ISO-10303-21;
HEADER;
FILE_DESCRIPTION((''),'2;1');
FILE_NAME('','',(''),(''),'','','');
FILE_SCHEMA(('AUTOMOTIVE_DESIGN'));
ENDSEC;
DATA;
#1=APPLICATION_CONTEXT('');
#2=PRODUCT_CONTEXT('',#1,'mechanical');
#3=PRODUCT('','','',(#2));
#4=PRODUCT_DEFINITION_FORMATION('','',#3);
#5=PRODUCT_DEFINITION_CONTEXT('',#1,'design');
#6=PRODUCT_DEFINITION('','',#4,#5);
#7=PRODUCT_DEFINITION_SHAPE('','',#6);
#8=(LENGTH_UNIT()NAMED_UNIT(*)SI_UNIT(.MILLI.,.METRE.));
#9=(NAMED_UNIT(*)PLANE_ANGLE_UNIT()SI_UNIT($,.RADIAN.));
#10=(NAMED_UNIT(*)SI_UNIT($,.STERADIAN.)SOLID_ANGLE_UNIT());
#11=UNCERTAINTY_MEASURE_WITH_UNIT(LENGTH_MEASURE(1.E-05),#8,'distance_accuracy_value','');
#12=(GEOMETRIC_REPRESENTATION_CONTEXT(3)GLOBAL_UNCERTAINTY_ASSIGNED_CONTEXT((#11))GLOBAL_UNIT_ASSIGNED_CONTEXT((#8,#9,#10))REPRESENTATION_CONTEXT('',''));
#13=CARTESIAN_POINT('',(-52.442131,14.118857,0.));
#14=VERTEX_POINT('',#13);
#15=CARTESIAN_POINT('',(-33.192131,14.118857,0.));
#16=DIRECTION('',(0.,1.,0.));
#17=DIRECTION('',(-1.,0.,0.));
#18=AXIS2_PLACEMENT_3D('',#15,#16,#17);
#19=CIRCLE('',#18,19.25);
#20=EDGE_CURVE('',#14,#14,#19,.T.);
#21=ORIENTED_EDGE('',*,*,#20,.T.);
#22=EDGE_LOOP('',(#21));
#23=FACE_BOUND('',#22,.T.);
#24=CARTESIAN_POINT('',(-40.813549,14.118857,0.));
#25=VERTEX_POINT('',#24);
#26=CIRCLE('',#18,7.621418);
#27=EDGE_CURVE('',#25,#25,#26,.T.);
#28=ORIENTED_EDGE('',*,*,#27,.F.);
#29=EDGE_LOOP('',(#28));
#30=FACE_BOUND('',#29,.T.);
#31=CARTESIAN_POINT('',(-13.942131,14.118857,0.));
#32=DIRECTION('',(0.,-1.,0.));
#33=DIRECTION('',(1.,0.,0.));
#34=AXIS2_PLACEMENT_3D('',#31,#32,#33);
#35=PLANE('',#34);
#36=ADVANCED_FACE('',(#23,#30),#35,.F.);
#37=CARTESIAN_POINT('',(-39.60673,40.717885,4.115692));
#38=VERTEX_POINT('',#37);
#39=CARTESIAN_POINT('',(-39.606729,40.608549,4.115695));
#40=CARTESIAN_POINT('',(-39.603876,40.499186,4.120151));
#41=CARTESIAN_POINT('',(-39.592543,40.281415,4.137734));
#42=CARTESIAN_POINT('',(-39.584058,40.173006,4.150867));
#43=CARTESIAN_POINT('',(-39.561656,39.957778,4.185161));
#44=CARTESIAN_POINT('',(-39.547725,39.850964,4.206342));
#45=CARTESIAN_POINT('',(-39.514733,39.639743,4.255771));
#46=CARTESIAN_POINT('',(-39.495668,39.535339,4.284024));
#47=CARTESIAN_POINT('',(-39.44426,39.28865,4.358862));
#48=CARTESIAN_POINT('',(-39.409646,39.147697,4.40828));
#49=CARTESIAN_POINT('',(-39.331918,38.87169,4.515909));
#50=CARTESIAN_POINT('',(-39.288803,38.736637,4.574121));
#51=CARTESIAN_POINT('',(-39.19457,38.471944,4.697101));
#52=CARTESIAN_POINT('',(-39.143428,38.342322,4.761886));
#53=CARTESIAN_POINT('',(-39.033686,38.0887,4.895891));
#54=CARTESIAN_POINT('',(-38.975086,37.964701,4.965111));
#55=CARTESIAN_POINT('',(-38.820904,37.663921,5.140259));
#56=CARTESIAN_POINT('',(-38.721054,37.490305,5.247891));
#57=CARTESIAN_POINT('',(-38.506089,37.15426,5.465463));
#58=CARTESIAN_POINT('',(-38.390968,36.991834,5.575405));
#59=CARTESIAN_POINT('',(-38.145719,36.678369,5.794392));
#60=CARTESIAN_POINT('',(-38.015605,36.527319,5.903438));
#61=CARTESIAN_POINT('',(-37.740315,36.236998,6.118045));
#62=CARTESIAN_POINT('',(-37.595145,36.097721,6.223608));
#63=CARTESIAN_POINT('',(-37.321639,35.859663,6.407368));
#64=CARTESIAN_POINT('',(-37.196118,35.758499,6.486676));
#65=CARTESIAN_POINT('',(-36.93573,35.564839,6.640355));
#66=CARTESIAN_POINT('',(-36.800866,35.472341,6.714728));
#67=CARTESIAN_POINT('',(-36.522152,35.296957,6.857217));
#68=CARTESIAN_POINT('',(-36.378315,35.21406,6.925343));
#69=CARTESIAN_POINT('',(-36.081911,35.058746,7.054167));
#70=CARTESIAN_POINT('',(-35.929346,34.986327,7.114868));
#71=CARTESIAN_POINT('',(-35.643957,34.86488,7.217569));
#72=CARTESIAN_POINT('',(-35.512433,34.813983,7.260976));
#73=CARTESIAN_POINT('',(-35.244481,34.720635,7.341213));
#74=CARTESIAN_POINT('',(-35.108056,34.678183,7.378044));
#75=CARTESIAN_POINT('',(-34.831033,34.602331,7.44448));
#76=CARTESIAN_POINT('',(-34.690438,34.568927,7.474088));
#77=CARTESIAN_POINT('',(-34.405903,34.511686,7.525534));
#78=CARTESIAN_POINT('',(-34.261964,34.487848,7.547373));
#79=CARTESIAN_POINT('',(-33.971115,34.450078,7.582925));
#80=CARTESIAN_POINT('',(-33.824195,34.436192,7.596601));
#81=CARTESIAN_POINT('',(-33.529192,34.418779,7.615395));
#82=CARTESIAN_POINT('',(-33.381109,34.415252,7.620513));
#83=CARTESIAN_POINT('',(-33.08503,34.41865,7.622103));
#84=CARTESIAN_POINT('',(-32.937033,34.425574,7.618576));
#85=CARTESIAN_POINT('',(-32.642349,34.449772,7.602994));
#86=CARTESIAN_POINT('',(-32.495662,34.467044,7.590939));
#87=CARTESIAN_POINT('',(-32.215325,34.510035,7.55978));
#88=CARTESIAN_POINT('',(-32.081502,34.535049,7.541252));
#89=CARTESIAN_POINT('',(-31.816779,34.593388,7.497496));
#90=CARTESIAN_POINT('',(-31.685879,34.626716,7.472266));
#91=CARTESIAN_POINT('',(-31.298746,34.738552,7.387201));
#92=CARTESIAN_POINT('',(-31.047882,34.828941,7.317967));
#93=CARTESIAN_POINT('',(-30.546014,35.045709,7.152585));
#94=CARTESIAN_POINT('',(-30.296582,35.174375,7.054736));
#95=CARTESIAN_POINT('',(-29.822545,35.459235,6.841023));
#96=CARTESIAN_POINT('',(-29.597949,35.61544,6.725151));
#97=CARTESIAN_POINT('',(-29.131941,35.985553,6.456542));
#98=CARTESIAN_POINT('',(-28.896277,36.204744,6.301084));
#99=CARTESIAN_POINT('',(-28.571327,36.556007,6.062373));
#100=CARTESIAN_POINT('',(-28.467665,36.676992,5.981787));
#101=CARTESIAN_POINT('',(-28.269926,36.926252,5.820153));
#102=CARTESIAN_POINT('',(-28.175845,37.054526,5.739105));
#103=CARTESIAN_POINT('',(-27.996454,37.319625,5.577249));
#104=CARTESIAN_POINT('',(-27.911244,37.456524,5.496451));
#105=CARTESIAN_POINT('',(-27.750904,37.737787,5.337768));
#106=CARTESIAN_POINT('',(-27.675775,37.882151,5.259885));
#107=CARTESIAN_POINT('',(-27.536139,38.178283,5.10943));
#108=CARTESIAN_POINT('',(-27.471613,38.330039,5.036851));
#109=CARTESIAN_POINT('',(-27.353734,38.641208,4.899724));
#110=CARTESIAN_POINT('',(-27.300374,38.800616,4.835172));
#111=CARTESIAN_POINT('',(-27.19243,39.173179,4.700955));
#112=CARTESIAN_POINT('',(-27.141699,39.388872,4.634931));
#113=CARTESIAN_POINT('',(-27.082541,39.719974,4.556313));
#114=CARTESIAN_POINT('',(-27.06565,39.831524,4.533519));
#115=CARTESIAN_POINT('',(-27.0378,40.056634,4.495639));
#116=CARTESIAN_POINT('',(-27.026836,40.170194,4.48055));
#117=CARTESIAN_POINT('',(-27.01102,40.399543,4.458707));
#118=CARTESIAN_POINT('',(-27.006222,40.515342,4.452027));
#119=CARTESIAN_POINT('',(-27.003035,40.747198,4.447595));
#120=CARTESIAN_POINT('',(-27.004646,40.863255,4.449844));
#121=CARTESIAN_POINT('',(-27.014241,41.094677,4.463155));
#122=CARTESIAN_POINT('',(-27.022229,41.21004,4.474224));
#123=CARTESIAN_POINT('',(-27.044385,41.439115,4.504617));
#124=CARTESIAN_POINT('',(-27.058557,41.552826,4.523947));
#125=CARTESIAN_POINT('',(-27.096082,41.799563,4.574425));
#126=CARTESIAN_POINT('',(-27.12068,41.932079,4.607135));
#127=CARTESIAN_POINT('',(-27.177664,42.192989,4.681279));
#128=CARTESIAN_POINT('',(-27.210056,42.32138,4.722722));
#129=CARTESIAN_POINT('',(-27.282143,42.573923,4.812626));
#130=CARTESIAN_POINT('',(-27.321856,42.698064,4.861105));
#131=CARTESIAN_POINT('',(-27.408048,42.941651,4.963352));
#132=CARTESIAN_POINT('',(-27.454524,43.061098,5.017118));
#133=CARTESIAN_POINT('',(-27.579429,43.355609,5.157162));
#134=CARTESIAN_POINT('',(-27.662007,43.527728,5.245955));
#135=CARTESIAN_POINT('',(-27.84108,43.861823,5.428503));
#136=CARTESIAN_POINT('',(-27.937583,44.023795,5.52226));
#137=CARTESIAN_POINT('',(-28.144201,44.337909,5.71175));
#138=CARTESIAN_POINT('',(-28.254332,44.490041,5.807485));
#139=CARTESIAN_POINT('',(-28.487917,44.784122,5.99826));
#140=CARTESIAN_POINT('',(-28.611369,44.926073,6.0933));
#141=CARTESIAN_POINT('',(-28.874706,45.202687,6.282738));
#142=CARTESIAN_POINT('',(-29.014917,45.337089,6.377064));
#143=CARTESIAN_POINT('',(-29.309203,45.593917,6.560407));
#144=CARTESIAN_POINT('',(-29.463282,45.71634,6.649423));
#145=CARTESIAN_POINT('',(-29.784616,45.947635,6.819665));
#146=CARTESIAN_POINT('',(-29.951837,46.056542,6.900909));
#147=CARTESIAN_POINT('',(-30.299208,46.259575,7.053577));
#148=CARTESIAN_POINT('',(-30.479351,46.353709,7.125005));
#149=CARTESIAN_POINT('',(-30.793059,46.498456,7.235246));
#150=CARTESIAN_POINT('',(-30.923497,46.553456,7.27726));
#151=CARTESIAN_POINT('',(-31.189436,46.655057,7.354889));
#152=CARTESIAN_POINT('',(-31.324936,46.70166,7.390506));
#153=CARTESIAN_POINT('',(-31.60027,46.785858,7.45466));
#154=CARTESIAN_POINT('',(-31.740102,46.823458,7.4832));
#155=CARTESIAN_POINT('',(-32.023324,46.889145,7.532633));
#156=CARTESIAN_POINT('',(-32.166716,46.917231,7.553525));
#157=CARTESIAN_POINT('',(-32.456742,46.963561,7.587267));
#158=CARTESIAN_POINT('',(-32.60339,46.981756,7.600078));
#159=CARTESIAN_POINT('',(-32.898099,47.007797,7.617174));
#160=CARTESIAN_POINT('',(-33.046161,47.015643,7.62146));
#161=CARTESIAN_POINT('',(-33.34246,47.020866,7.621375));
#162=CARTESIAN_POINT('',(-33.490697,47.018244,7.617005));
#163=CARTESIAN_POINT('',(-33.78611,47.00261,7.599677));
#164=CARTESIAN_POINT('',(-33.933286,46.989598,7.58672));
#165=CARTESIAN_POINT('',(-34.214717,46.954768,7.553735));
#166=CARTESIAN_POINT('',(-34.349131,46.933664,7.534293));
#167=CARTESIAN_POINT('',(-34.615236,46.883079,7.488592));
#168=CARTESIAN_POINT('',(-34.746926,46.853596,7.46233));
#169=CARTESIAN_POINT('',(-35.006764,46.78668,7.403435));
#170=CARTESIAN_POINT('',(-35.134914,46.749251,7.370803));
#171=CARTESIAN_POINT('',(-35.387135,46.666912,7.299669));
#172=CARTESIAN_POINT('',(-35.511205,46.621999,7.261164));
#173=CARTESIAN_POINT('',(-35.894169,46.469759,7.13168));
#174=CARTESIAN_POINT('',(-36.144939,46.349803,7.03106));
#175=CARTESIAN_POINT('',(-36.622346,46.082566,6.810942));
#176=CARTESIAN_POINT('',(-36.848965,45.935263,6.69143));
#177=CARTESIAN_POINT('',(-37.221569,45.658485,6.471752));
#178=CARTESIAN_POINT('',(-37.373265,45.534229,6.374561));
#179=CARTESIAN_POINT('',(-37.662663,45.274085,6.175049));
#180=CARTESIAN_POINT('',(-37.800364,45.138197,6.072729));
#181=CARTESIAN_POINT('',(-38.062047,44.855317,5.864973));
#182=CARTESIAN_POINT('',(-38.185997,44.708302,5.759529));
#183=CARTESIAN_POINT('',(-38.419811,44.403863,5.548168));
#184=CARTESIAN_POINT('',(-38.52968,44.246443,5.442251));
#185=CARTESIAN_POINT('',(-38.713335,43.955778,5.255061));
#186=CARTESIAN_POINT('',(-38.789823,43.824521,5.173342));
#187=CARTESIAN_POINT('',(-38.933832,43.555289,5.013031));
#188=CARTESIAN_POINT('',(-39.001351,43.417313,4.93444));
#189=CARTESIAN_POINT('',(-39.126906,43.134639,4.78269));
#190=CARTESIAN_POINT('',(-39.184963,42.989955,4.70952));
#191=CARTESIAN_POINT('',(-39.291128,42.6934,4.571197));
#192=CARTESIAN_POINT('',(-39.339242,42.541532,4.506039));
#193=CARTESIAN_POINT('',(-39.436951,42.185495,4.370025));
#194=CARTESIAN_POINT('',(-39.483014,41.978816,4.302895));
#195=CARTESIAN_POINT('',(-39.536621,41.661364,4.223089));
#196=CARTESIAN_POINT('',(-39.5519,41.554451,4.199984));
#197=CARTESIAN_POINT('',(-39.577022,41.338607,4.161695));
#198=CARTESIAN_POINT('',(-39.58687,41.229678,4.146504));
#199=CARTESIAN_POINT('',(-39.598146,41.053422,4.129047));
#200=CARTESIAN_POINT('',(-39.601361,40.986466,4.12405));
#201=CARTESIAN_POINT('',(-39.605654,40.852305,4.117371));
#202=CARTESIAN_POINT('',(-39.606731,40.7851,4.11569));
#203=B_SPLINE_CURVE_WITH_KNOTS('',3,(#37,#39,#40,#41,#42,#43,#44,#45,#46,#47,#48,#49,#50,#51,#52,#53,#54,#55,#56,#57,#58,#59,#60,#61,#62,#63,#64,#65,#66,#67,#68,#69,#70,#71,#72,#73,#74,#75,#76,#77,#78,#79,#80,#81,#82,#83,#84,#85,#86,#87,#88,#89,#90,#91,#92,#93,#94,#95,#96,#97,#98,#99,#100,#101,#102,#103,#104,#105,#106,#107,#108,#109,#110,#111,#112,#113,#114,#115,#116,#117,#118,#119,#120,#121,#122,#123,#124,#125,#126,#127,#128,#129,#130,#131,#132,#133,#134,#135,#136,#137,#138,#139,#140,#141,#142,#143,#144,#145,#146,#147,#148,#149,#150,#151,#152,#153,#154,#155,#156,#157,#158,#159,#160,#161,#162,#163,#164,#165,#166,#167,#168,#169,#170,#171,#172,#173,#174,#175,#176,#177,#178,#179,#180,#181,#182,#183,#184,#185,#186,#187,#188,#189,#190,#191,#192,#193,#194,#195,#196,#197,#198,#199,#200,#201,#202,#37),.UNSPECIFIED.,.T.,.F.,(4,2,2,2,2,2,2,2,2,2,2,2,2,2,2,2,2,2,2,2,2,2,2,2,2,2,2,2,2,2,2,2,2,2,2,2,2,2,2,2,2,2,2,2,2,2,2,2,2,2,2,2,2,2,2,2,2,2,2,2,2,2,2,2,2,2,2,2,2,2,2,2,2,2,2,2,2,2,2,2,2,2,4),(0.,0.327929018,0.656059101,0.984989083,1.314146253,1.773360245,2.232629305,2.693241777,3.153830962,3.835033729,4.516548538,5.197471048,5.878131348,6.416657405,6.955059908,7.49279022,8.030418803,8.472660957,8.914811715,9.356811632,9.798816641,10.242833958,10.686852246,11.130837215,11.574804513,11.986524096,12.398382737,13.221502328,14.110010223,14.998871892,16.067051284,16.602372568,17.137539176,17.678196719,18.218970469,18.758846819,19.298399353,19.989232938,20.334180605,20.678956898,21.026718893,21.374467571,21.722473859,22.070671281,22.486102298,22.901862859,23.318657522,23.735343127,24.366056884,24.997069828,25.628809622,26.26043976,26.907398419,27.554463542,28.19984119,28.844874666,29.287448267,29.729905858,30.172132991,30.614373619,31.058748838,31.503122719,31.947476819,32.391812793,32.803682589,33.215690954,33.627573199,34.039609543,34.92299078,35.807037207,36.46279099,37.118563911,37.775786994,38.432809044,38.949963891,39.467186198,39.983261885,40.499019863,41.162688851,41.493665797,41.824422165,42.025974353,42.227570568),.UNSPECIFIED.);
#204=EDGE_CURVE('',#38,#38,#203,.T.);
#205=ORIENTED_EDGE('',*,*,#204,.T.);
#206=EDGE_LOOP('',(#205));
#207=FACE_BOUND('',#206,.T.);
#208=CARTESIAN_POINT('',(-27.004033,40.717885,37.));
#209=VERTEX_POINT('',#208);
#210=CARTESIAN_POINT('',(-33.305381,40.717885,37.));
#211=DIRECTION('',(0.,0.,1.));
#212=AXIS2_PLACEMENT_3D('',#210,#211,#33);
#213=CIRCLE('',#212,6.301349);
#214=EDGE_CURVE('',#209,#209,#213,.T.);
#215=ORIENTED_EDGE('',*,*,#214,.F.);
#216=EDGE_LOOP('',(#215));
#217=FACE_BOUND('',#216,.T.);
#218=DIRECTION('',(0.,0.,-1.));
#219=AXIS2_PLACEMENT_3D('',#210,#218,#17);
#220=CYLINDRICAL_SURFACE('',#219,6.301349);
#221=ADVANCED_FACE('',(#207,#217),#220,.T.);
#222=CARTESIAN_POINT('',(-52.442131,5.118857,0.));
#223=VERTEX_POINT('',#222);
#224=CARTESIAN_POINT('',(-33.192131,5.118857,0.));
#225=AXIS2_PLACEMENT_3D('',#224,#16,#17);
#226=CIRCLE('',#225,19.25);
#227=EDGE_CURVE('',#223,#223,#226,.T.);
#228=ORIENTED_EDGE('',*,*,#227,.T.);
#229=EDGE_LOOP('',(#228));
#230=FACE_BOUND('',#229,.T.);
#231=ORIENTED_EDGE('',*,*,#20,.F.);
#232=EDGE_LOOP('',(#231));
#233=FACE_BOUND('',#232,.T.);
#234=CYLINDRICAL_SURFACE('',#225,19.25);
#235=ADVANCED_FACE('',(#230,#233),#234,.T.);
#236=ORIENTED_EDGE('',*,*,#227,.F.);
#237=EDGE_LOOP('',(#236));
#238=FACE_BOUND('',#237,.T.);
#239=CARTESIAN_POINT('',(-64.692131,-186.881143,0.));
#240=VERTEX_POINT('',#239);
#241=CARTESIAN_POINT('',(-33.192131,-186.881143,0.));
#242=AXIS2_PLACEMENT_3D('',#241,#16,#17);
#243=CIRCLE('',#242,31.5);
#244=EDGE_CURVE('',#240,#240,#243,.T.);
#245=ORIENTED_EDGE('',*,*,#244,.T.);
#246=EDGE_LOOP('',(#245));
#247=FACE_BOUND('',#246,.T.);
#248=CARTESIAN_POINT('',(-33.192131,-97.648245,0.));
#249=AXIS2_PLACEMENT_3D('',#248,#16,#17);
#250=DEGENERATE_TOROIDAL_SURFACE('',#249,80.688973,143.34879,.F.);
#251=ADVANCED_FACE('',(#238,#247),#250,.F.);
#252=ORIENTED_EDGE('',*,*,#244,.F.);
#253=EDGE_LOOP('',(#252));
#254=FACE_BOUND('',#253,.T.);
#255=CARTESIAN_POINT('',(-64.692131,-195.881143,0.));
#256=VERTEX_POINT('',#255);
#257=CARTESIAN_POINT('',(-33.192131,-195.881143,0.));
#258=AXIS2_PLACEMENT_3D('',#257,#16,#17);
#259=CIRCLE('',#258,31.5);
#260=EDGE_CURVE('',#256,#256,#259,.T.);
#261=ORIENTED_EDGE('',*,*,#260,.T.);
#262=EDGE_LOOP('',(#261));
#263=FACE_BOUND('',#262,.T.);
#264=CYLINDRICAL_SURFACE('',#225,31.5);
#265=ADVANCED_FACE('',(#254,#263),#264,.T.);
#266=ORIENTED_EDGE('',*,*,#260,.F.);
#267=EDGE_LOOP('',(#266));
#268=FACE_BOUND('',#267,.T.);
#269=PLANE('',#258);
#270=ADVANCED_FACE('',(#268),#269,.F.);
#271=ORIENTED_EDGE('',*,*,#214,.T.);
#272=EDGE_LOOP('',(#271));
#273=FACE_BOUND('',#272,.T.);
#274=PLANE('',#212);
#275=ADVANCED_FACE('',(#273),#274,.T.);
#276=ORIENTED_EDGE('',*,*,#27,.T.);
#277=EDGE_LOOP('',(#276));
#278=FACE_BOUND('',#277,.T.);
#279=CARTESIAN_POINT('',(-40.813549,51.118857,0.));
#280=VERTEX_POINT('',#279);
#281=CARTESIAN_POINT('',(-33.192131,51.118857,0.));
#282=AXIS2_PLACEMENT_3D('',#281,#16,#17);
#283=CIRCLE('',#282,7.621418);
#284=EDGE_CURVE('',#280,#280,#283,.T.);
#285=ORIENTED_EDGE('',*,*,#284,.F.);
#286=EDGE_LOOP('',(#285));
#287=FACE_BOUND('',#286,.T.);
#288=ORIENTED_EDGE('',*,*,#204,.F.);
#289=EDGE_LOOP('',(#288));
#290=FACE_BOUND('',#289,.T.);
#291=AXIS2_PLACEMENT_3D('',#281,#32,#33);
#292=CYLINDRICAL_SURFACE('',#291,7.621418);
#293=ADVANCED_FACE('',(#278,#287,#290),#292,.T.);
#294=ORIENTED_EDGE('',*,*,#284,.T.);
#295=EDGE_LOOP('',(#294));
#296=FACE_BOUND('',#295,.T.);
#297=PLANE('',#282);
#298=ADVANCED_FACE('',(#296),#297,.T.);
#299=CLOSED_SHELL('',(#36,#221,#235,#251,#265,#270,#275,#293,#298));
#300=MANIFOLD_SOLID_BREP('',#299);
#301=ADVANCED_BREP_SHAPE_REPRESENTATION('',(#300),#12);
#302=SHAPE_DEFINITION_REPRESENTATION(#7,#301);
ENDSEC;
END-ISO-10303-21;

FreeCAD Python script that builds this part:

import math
import FreeCAD as App
import Part
import Sketcher
Q = App.Units.Quantity

doc = App.newDocument("Part")
params = doc.addObject("Spreadsheet::Sheet", "Params")
for row, (alias, value) in enumerate([
    ("sketch1_height", "210 mm"),
    ("sketch1_height2", "9 mm"),
    ("sketch1_width", "31.5 mm"),
    ("sketch1_width2", "19.25 mm"),
    ("revolution_angle", "360 deg"),
    ("pad1_length", "37 mm"),
    ("pad2_length", "37 mm"),
], start=1):
    params.set(f"A{row}", alias)
    params.set(f"B{row}", "=" + value)
    params.setAlias(f"B{row}", alias)

body = doc.addObject("PartDesign::Body", "Body")

# Sketch on XY plane
sketch1 = body.newObject("Sketcher::SketchObject", "Sketch")
sketch1.AttachmentSupport = (doc.getObject("XY_Plane"), [""])
sketch1.MapMode = "FlatFace"
sketch1.addGeometry(Part.LineSegment(App.Vector(-13.942131, 14.118857, 0), App.Vector(-33.192131, 14.118857, 0)), False)
sketch1.addGeometry(Part.LineSegment(App.Vector(-33.192131, 14.118857, 0), App.Vector(-33.192131, -195.881143, 0)), False)
sketch1.addGeometry(Part.LineSegment(App.Vector(-33.192131, -195.881143, 0), App.Vector(-1.692131, -195.881143, 0)), False)
sketch1.addGeometry(Part.LineSegment(App.Vector(-1.692131, -195.881143, 0), App.Vector(-1.692131, -186.881143, 0)), False)
sketch1.addGeometry(Part.ArcOfCircle(Part.Circle(App.Vector(-113.881104, -97.648245, 0), App.Vector(0, 0, 1), 143.34879), math.radians(-38.498048), math.radians(45.799332)), False)
sketch1.addGeometry(Part.LineSegment(App.Vector(-13.942131, 5.118857, 0), App.Vector(-13.942131, 14.118857, 0)), False)
sketch1.addGeometry(Part.LineSegment(App.Vector(-33.192131, 14.118857, 0), App.Vector(-33.192131, -195.881143, 0)), True)  # axis
sketch1.addConstraint(Sketcher.Constraint("Coincident", 0, 2, 1, 1))
sketch1.addConstraint(Sketcher.Constraint("Coincident", 1, 2, 2, 1))
sketch1.addConstraint(Sketcher.Constraint("Coincident", 2, 2, 3, 1))
sketch1.addConstraint(Sketcher.Constraint("Coincident", 3, 2, 4, 1))
sketch1.addConstraint(Sketcher.Constraint("Coincident", 4, 2, 5, 1))
sketch1.addConstraint(Sketcher.Constraint("Coincident", 5, 2, 0, 1))
sketch1.addConstraint(Sketcher.Constraint("Horizontal", 0))
sketch1.addConstraint(Sketcher.Constraint("Vertical", 1))
sketch1.addConstraint(Sketcher.Constraint("Horizontal", 2))
sketch1.addConstraint(Sketcher.Constraint("Vertical", 3))
sketch1.addConstraint(Sketcher.Constraint("Vertical", 5))
sketch1.addConstraint(Sketcher.Constraint("Vertical", 6))
sketch1.addConstraint(Sketcher.Constraint("Coincident", 6, 1, 0, 2))
sketch1.addConstraint(Sketcher.Constraint("Horizontal", 2, 2, 6, 2))
sketch1.addConstraint(Sketcher.Constraint("Equal", 3, 5))
sketch1.addConstraint(Sketcher.Constraint("DistanceY", 1, 2, 1, 1, Q("210 mm")))
sketch1.addConstraint(Sketcher.Constraint("DistanceY", 3, 1, 3, 2, Q("9 mm")))
sketch1.addConstraint(Sketcher.Constraint("DistanceX", 2, 1, 2, 2, Q("31.5 mm")))
sketch1.addConstraint(Sketcher.Constraint("DistanceX", 0, 2, 0, 1, Q("19.25 mm")))
sketch1.addConstraint(Sketcher.Constraint("Radius", 4, Q("143.34879 mm")))
sketch1.addConstraint(Sketcher.Constraint("DistanceX", 0, 2, -1, 1, Q("33.192131 mm")))
sketch1.addConstraint(Sketcher.Constraint("DistanceY", 4, 3, -1, 1, Q("97.648245 mm")))
sketch1.setExpression("Constraints[15]", "Params.sketch1_height")
sketch1.setExpression("Constraints[16]", "Params.sketch1_height2")
sketch1.setExpression("Constraints[17]", "Params.sketch1_width")
sketch1.setExpression("Constraints[18]", "Params.sketch1_width2")
revolution = body.newObject("PartDesign::Revolution", "Revolution")
revolution.Profile = sketch1
revolution.ReferenceAxis = (sketch1, ["Axis0"])
revolution.setExpression("Angle", "Params.revolution_angle")

# Sketch on XZ plane
sketch2 = body.newObject("Sketcher::SketchObject", "Sketch001")
sketch2.AttachmentSupport = (doc.getObject("XZ_Plane"), [""])
sketch2.MapMode = "FlatFace"
sketch2.AttachmentOffset = App.Placement(App.Vector(0, 0, -14.118857), App.Rotation())
sketch2.addGeometry(Part.Circle(App.Vector(-33.192131, 0, 0), App.Vector(0, 0, 1), 7.621418), False)
sketch2.addConstraint(Sketcher.Constraint("PointOnObject", 0, 3, -1))
sketch2.addConstraint(Sketcher.Constraint("Diameter", 0, Q("15.242835 mm")))
sketch2.addConstraint(Sketcher.Constraint("DistanceX", 0, 3, -1, 1, Q("33.192131 mm")))
pad1 = body.newObject("PartDesign::Pad", "Pad")
pad1.Profile = sketch2
pad1.setExpression("Length", "Params.pad1_length")
pad1.Reversed = True

# Sketch on XY plane
sketch3 = body.newObject("Sketcher::SketchObject", "Sketch002")
sketch3.AttachmentSupport = (doc.getObject("XY_Plane"), [""])
sketch3.MapMode = "FlatFace"
sketch3.addGeometry(Part.Circle(App.Vector(-33.305381, 40.717885, 0), App.Vector(0, 0, 1), 6.301349), False)
sketch3.addConstraint(Sketcher.Constraint("Diameter", 0, Q("12.602697 mm")))
sketch3.addConstraint(Sketcher.Constraint("DistanceX", 0, 3, -1, 1, Q("33.305381 mm")))
sketch3.addConstraint(Sketcher.Constraint("DistanceY", -1, 1, 0, 3, Q("40.717885 mm")))
pad2 = body.newObject("PartDesign::Pad", "Pad001")
pad2.Profile = sketch3
pad2.setExpression("Length", "Params.pad2_length")

doc.recompute()
